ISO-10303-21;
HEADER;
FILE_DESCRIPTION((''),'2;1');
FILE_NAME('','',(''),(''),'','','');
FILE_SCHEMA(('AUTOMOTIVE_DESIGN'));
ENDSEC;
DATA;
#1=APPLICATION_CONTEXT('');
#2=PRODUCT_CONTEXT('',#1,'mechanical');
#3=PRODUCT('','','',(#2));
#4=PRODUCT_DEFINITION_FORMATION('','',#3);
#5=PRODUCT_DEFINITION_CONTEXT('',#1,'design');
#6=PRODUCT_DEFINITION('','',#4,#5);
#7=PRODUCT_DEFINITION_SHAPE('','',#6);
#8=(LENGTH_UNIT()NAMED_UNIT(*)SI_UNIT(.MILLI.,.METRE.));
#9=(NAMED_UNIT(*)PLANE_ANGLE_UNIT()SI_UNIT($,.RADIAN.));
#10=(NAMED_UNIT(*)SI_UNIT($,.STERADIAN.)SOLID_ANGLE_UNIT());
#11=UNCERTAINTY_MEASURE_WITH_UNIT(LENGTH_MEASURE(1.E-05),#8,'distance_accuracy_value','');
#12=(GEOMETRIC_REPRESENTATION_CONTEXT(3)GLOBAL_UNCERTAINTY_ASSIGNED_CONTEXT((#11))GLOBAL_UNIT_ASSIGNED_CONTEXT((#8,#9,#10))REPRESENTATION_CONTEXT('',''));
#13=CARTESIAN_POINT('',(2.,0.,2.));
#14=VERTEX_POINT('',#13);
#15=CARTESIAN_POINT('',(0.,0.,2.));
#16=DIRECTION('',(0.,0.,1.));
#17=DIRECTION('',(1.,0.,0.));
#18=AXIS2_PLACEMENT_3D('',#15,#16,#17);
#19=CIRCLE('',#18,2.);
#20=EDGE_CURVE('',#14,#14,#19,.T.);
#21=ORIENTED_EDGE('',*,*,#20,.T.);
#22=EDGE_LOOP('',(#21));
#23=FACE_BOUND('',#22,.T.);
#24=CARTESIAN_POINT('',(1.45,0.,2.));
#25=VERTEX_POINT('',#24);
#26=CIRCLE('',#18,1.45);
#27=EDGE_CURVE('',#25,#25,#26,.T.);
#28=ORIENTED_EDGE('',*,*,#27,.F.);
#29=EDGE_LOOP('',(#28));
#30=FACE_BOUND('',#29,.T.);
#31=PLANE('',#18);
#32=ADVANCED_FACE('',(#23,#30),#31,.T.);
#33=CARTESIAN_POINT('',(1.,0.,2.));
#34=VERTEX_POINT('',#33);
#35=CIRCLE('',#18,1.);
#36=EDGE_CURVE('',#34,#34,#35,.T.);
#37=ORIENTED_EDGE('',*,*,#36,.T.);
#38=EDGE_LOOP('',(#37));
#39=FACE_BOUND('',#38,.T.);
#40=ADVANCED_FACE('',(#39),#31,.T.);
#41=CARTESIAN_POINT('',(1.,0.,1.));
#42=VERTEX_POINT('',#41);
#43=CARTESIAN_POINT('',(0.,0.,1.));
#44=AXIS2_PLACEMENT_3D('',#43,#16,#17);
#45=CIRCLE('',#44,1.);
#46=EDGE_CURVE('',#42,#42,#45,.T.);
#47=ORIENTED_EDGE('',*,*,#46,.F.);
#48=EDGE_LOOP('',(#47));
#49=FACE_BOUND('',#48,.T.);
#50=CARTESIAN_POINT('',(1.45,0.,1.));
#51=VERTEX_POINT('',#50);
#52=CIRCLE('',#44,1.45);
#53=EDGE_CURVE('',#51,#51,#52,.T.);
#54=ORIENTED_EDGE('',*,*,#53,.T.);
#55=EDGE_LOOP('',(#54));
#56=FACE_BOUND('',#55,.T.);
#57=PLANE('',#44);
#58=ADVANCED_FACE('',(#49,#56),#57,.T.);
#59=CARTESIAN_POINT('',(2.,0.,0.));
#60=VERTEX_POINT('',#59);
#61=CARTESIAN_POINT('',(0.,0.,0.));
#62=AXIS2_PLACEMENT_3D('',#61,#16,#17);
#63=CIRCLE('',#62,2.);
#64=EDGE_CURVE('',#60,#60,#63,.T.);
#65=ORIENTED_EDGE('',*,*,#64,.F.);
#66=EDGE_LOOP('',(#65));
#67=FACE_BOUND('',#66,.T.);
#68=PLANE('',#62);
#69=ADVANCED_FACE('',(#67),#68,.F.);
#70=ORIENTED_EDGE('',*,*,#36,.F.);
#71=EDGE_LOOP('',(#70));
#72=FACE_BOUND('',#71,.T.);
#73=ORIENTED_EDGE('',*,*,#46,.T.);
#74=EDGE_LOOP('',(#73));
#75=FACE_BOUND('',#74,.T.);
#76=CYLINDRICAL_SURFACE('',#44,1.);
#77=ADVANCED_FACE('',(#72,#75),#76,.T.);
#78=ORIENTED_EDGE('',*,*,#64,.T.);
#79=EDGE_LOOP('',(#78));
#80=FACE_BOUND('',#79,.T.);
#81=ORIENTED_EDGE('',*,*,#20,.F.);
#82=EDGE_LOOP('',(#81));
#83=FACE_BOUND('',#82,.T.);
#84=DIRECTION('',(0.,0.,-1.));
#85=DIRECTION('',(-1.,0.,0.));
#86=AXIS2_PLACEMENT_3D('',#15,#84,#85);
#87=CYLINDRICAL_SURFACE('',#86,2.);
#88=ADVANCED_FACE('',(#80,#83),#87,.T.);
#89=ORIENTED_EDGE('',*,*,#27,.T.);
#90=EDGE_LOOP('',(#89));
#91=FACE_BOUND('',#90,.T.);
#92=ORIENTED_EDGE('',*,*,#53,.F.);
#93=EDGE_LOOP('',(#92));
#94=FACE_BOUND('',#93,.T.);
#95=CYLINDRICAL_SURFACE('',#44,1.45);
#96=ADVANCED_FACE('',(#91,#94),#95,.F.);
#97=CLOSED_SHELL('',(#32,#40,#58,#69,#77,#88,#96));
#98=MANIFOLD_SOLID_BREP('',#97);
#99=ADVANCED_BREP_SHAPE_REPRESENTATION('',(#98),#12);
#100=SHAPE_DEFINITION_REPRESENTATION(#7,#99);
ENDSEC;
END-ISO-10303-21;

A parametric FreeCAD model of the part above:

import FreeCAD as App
import Part
import Sketcher

doc = App.newDocument("Part")
body = doc.addObject("PartDesign::Body", "Body")

sketch1 = body.newObject("Sketcher::SketchObject", "Sketch")
sketch1.AttachmentSupport = (doc.getObject("XY_Plane"), [""])
sketch1.MapMode = "FlatFace"
sketch1.addGeometry(Part.Circle(App.Vector(0, 0, 0), App.Vector(0, 0, 1), 2), False)
sketch1.addConstraint(Sketcher.Constraint("Coincident", 0, 3, -1, 1))
sketch1.addConstraint(Sketcher.Constraint("Diameter", 0, 4.0))
pad1 = body.newObject("PartDesign::Pad", "Pad")
pad1.Profile = sketch1
pad1.Length = 2

sketch2 = body.newObject("Sketcher::SketchObject", "Sketch001")
sketch2.AttachmentSupport = (doc.getObject("XY_Plane"), [""])
sketch2.MapMode = "FlatFace"
sketch2.AttachmentOffset = App.Placement(App.Vector(0, 0, 2), App.Rotation())
sketch2.addGeometry(Part.Circle(App.Vector(0, 0, 0), App.Vector(0, 0, 1), 1.4), False)
sketch2.addGeometry(Part.Circle(App.Vector(0, 0, 0), App.Vector(0, 0, 1), 1), False)
sketch2.addConstraint(Sketcher.Constraint("Coincident", 0, 3, -1, 1))
sketch2.addConstraint(Sketcher.Constraint("Coincident", 1, 3, -1, 1))
sketch2.addConstraint(Sketcher.Constraint("Diameter", 1, 2.0))
sketch2.addConstraint(Sketcher.Constraint("Diameter", 0, 2.9))
pocket1 = body.newObject("PartDesign::Pocket", "Pocket")
pocket1.Profile = sketch2
pocket1.Length = 1

doc.recompute()
